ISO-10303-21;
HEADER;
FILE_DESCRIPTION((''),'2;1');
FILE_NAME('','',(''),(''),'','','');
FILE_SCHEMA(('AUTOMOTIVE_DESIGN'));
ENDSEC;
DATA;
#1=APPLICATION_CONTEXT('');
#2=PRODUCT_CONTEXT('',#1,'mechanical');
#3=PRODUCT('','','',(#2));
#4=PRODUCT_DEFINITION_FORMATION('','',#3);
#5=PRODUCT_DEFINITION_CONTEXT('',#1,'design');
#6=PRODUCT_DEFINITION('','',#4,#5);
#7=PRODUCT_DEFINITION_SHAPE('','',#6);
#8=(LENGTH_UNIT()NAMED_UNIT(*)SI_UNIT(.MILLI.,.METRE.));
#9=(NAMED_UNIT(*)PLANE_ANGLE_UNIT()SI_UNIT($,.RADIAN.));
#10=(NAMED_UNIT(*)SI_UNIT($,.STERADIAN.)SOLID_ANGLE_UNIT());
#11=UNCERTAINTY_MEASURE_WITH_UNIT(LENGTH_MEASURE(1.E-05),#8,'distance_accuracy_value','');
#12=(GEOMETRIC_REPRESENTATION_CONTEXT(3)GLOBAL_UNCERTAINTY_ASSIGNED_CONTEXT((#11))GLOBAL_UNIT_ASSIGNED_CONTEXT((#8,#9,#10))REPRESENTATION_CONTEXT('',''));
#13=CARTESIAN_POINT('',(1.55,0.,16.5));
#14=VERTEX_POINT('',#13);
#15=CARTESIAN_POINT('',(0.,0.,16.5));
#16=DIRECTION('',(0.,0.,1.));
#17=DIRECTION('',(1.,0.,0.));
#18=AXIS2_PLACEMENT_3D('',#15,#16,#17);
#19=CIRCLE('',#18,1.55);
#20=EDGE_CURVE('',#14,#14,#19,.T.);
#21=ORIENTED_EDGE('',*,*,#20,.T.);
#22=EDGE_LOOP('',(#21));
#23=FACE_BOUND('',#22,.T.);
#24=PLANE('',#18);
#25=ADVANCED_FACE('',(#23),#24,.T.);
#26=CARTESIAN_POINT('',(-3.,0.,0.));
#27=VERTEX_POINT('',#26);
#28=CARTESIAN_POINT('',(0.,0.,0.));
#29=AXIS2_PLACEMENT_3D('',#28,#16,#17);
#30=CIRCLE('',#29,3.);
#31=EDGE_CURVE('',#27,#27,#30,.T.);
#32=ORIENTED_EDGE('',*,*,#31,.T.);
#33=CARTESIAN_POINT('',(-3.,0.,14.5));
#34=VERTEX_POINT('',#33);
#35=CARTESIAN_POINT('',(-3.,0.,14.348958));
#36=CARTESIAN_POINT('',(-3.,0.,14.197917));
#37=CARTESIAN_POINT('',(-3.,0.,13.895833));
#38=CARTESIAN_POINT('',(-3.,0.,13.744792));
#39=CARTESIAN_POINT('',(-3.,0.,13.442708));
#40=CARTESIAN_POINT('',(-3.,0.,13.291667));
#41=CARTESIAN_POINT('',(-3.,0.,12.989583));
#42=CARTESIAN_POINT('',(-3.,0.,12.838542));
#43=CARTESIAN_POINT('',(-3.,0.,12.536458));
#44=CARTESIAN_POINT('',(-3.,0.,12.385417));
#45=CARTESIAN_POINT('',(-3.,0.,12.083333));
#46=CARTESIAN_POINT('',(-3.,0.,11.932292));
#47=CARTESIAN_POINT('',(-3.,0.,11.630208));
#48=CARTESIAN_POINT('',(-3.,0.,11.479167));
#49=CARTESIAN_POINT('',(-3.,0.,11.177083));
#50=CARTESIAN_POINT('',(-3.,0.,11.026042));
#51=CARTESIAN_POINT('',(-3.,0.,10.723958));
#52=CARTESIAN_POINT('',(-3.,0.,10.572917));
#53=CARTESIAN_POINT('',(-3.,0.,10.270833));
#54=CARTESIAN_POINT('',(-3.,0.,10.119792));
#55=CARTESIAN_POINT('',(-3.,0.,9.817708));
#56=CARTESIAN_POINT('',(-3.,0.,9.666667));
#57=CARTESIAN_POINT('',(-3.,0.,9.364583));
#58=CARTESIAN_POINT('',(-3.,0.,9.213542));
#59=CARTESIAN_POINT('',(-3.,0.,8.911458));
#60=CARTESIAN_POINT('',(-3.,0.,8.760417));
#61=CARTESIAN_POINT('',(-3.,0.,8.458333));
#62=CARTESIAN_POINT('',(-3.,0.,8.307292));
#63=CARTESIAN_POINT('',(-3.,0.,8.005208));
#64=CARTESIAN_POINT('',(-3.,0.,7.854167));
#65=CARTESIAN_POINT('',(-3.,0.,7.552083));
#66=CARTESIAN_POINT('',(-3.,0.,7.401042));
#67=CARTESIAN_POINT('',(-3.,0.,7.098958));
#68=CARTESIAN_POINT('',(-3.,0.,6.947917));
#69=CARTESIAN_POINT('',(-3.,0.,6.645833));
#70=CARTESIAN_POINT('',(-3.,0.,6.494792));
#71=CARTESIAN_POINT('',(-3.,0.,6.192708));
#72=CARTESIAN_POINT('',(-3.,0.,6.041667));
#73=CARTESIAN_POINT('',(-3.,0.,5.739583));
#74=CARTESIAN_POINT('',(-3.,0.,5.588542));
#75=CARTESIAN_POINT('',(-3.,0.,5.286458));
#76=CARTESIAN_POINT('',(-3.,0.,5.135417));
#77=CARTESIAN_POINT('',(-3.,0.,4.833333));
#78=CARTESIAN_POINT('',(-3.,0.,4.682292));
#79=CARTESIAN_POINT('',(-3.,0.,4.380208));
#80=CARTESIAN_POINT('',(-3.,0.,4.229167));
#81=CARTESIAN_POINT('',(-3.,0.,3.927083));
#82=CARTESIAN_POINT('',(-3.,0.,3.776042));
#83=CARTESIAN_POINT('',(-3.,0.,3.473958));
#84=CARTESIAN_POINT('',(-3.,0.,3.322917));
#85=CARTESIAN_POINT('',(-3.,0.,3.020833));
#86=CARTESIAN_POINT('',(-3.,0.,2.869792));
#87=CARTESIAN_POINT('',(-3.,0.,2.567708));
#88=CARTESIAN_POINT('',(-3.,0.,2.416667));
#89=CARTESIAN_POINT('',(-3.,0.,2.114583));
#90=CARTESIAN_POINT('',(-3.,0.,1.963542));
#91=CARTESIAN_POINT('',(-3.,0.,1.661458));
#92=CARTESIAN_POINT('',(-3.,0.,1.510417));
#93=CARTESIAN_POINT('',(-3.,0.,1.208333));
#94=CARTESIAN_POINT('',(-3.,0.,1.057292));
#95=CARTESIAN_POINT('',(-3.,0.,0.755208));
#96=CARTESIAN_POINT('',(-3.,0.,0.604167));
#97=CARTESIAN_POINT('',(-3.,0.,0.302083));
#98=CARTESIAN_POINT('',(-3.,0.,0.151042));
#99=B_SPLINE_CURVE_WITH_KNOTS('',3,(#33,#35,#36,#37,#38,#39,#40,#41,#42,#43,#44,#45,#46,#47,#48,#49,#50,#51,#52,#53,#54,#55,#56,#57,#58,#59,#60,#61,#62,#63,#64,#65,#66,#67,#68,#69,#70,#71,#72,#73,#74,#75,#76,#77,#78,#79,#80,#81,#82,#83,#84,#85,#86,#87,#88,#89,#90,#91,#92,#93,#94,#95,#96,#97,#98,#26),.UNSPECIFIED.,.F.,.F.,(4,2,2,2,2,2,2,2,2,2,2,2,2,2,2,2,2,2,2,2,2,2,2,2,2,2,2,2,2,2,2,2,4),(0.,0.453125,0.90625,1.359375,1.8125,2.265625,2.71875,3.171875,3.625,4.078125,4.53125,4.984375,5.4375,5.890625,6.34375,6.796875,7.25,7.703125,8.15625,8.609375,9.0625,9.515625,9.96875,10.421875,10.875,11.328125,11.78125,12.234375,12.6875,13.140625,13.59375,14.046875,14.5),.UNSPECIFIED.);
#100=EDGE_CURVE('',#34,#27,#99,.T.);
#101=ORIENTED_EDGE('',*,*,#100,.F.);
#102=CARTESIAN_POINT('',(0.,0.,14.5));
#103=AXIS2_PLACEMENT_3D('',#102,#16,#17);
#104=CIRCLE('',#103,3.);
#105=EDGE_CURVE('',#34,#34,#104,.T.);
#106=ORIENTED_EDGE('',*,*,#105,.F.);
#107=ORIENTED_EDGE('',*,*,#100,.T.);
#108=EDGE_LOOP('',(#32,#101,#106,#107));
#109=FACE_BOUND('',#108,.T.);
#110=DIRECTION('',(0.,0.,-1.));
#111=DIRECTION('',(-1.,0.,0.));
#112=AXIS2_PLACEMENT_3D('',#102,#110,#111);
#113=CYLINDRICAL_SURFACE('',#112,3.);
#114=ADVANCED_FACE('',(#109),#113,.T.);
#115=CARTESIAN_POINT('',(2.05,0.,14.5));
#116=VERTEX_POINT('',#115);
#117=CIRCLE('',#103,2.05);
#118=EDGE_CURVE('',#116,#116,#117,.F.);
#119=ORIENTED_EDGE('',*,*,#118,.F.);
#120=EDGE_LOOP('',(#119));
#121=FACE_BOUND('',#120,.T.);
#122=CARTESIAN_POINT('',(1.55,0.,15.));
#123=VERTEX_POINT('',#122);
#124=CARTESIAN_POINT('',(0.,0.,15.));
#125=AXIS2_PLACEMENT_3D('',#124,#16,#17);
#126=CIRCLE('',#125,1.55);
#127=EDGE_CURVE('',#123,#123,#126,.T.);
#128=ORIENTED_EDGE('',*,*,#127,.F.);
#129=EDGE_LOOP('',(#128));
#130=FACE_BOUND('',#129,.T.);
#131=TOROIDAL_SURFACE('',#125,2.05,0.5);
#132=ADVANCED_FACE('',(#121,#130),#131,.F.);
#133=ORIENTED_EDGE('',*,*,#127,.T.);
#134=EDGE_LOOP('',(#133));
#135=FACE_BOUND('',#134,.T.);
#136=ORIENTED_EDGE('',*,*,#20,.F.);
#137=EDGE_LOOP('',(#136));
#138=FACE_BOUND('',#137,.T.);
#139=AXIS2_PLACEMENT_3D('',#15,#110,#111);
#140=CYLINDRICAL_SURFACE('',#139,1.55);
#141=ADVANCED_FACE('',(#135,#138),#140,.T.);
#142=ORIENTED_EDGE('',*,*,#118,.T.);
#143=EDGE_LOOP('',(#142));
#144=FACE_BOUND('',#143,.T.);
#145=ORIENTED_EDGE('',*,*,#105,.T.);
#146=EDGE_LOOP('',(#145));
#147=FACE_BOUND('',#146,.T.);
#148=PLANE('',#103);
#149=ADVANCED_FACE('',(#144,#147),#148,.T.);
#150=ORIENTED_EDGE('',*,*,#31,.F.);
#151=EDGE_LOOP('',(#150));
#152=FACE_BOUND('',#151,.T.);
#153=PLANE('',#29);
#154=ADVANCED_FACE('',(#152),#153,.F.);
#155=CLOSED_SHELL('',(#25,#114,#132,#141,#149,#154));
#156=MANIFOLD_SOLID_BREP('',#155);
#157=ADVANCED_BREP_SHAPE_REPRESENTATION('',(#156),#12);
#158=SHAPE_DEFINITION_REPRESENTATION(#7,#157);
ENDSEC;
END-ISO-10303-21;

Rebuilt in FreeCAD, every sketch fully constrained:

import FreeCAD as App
import Part
import Sketcher
Q = App.Units.Quantity


def edges_at(feature, points):
    """Names of the edges that pass closest to the given points."""
    edges = feature.Shape.Edges
    near = lambda p: min(range(len(edges)), key=lambda i: edges[i].distToShape(Part.Vertex(*p))[0])
    return sorted({f"Edge{near(p) + 1}" for p in points})

doc = App.newDocument("Part")
body = doc.addObject("PartDesign::Body", "Body")

# Sketch on XY plane
sketch1 = body.newObject("Sketcher::SketchObject", "Sketch")
sketch1.AttachmentSupport = (doc.getObject("XY_Plane"), [""])
sketch1.MapMode = "FlatFace"
sketch1.addGeometry(Part.Circle(App.Vector(0, 0, 0), App.Vector(0, 0, 1), 3), False)
sketch1.addConstraint([
    Sketcher.Constraint("Coincident", 0, 3, -1, 1),
    Sketcher.Constraint("Diameter", 0, Q("6 mm")),
])
pad1 = body.newObject("PartDesign::Pad", "Pad")
pad1.Profile = sketch1
pad1.Length = 14.5

# Sketch on XY plane
sketch2 = body.newObject("Sketcher::SketchObject", "Sketch001")
sketch2.AttachmentSupport = (doc.getObject("XY_Plane"), [""])
sketch2.MapMode = "FlatFace"
sketch2.AttachmentOffset = App.Placement(App.Vector(0, 0, 14.5), App.Rotation())
sketch2.addGeometry(Part.Circle(App.Vector(0, 0, 0), App.Vector(0, 0, 1), 1.6), False)
sketch2.addConstraint([
    Sketcher.Constraint("Coincident", 0, 3, -1, 1),
    Sketcher.Constraint("Diameter", 0, Q("3.1 mm")),
])
pad2 = body.newObject("PartDesign::Pad", "Pad001")
pad2.Profile = sketch2
pad2.Length = 2
doc.recompute()

fillet = body.newObject("PartDesign::Fillet", "Fillet")
fillet.Base = (pad2, edges_at(pad2, [(-1.55, 0, 14.5)]))
fillet.Radius = 0.5

doc.recompute()
